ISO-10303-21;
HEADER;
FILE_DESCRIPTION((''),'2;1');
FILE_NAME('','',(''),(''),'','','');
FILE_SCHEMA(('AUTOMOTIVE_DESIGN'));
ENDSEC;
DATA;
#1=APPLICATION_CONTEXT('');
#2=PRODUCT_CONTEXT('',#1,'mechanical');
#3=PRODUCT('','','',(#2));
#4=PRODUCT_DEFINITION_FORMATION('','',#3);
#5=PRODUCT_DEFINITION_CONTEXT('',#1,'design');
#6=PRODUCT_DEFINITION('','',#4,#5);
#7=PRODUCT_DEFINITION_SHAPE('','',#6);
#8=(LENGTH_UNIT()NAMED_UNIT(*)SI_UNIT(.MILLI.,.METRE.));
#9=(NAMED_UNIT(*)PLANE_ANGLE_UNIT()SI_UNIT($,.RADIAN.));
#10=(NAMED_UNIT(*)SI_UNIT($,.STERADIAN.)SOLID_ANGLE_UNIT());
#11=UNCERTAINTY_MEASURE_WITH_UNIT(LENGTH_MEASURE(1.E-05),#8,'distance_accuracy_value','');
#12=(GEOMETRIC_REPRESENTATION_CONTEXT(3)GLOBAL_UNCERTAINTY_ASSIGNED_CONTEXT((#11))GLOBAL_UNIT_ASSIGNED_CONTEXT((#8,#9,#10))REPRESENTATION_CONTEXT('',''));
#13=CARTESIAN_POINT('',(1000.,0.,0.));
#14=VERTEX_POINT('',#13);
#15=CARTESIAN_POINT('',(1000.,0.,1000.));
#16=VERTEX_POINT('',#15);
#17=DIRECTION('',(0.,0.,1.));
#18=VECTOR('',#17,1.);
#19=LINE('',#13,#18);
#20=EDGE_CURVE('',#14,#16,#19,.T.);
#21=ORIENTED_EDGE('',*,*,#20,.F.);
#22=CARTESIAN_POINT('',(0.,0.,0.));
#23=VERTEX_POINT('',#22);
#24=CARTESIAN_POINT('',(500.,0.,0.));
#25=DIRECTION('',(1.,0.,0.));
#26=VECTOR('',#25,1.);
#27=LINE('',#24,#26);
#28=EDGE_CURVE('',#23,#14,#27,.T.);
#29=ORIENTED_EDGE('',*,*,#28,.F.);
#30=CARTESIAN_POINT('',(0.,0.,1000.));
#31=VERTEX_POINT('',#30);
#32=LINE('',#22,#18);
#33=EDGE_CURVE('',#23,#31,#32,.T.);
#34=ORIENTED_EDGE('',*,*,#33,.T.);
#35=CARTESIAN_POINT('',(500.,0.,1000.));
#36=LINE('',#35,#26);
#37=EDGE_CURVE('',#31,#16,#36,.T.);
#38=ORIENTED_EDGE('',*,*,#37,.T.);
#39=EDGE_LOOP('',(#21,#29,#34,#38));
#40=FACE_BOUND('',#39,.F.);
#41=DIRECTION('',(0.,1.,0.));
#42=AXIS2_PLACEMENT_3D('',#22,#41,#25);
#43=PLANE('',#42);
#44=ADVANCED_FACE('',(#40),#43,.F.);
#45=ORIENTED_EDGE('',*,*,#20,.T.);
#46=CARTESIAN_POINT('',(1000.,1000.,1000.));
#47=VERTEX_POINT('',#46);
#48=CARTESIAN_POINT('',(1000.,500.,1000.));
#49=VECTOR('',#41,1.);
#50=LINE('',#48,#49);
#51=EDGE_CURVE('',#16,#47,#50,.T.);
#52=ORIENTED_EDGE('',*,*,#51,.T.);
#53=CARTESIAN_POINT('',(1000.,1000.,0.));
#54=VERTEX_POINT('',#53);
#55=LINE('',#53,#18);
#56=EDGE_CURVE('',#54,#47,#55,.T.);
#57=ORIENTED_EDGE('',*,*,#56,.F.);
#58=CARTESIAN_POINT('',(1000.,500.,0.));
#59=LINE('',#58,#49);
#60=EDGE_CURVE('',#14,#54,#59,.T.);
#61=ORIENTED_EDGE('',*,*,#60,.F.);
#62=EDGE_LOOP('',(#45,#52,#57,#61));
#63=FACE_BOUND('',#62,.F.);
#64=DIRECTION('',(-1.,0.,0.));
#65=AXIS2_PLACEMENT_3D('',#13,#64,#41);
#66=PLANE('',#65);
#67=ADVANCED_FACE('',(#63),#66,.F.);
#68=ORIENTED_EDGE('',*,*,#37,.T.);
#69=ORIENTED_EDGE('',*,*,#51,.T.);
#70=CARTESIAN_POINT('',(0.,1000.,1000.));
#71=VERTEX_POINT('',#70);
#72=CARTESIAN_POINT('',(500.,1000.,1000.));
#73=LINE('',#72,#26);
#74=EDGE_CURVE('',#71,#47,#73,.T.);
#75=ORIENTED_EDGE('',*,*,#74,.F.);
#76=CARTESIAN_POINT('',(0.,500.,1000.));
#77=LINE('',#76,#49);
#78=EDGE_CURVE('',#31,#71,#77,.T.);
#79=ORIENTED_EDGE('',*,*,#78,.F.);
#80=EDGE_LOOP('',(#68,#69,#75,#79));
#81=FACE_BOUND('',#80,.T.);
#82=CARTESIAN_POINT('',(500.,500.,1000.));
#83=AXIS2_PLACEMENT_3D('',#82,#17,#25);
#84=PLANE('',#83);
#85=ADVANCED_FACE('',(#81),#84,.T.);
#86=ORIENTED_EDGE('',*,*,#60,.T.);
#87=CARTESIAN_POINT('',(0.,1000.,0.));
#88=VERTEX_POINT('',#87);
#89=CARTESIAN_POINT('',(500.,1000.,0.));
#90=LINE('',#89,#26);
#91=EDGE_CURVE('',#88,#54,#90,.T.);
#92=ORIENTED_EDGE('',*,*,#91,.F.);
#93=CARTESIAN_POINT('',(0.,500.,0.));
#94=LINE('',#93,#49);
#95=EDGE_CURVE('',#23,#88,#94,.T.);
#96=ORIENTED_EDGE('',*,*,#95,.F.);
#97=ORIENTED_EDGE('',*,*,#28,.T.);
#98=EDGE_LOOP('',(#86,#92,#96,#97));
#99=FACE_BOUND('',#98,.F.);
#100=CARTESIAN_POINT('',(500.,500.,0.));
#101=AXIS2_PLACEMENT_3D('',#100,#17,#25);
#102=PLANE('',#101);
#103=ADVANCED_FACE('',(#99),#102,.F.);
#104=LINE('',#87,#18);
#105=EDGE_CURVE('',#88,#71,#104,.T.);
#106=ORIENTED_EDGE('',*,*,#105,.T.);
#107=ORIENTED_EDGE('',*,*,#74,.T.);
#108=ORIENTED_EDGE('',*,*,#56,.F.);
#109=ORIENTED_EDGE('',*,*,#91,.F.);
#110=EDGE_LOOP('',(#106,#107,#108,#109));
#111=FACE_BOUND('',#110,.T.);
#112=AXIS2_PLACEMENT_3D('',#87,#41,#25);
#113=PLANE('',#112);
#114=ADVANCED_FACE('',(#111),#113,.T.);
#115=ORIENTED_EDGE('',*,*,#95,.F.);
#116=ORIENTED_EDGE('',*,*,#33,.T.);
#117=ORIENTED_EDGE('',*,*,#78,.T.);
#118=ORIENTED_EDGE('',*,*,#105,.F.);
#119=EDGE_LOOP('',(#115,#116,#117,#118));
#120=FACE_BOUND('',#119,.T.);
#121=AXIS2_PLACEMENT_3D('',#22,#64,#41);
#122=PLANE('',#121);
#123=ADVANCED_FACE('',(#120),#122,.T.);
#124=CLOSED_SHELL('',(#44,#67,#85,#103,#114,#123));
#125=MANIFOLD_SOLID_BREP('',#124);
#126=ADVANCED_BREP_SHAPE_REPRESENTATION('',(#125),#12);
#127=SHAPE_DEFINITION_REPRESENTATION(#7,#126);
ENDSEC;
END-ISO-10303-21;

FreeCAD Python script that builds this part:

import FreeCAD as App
import Part
import Sketcher

V = App.Vector
Q = App.Units.Quantity


def add_polygon(sketch, points):
    """Adds a closed chain of lines whose ends are joined by coincident constraints."""
    first, n = sketch.GeometryCount, len(points)
    for a, b in zip(points, points[1:] + points[:1]):
        sketch.addGeometry(Part.LineSegment(App.Vector(*a, 0), App.Vector(*b, 0)), False)
    for i in range(n):
        sketch.addConstraint(Sketcher.Constraint("Coincident", first + i, 2, first + (i + 1) % n, 1))

doc = App.newDocument("Part")
body = doc.addObject("PartDesign::Body", "Body")

# Sketch on XY plane
sketch1 = body.newObject("Sketcher::SketchObject", "Sketch")
sketch1.AttachmentSupport = (doc.getObject("XY_Plane"), [""])
sketch1.MapMode = "FlatFace"
add_polygon(sketch1, [(0, 1000), (0, 0), (1000, 0), (1000, 1000)])  # lines 0-3
sketch1.addConstraint([
    Sketcher.Constraint("Vertical", 0),
    Sketcher.Constraint("Horizontal", 1),
    Sketcher.Constraint("Vertical", 2),
    Sketcher.Constraint("Horizontal", 3),
    Sketcher.Constraint("Coincident", 0, 2, -1, 1),
    Sketcher.Constraint("Equal", 3, 0),
    Sketcher.Constraint("DistanceX", 1, 1, 1, 2, Q("1000 mm")),
])
pad1 = body.newObject("PartDesign::Pad", "Pad")
pad1.Profile = sketch1
pad1.Length = 1000

doc.recompute()
